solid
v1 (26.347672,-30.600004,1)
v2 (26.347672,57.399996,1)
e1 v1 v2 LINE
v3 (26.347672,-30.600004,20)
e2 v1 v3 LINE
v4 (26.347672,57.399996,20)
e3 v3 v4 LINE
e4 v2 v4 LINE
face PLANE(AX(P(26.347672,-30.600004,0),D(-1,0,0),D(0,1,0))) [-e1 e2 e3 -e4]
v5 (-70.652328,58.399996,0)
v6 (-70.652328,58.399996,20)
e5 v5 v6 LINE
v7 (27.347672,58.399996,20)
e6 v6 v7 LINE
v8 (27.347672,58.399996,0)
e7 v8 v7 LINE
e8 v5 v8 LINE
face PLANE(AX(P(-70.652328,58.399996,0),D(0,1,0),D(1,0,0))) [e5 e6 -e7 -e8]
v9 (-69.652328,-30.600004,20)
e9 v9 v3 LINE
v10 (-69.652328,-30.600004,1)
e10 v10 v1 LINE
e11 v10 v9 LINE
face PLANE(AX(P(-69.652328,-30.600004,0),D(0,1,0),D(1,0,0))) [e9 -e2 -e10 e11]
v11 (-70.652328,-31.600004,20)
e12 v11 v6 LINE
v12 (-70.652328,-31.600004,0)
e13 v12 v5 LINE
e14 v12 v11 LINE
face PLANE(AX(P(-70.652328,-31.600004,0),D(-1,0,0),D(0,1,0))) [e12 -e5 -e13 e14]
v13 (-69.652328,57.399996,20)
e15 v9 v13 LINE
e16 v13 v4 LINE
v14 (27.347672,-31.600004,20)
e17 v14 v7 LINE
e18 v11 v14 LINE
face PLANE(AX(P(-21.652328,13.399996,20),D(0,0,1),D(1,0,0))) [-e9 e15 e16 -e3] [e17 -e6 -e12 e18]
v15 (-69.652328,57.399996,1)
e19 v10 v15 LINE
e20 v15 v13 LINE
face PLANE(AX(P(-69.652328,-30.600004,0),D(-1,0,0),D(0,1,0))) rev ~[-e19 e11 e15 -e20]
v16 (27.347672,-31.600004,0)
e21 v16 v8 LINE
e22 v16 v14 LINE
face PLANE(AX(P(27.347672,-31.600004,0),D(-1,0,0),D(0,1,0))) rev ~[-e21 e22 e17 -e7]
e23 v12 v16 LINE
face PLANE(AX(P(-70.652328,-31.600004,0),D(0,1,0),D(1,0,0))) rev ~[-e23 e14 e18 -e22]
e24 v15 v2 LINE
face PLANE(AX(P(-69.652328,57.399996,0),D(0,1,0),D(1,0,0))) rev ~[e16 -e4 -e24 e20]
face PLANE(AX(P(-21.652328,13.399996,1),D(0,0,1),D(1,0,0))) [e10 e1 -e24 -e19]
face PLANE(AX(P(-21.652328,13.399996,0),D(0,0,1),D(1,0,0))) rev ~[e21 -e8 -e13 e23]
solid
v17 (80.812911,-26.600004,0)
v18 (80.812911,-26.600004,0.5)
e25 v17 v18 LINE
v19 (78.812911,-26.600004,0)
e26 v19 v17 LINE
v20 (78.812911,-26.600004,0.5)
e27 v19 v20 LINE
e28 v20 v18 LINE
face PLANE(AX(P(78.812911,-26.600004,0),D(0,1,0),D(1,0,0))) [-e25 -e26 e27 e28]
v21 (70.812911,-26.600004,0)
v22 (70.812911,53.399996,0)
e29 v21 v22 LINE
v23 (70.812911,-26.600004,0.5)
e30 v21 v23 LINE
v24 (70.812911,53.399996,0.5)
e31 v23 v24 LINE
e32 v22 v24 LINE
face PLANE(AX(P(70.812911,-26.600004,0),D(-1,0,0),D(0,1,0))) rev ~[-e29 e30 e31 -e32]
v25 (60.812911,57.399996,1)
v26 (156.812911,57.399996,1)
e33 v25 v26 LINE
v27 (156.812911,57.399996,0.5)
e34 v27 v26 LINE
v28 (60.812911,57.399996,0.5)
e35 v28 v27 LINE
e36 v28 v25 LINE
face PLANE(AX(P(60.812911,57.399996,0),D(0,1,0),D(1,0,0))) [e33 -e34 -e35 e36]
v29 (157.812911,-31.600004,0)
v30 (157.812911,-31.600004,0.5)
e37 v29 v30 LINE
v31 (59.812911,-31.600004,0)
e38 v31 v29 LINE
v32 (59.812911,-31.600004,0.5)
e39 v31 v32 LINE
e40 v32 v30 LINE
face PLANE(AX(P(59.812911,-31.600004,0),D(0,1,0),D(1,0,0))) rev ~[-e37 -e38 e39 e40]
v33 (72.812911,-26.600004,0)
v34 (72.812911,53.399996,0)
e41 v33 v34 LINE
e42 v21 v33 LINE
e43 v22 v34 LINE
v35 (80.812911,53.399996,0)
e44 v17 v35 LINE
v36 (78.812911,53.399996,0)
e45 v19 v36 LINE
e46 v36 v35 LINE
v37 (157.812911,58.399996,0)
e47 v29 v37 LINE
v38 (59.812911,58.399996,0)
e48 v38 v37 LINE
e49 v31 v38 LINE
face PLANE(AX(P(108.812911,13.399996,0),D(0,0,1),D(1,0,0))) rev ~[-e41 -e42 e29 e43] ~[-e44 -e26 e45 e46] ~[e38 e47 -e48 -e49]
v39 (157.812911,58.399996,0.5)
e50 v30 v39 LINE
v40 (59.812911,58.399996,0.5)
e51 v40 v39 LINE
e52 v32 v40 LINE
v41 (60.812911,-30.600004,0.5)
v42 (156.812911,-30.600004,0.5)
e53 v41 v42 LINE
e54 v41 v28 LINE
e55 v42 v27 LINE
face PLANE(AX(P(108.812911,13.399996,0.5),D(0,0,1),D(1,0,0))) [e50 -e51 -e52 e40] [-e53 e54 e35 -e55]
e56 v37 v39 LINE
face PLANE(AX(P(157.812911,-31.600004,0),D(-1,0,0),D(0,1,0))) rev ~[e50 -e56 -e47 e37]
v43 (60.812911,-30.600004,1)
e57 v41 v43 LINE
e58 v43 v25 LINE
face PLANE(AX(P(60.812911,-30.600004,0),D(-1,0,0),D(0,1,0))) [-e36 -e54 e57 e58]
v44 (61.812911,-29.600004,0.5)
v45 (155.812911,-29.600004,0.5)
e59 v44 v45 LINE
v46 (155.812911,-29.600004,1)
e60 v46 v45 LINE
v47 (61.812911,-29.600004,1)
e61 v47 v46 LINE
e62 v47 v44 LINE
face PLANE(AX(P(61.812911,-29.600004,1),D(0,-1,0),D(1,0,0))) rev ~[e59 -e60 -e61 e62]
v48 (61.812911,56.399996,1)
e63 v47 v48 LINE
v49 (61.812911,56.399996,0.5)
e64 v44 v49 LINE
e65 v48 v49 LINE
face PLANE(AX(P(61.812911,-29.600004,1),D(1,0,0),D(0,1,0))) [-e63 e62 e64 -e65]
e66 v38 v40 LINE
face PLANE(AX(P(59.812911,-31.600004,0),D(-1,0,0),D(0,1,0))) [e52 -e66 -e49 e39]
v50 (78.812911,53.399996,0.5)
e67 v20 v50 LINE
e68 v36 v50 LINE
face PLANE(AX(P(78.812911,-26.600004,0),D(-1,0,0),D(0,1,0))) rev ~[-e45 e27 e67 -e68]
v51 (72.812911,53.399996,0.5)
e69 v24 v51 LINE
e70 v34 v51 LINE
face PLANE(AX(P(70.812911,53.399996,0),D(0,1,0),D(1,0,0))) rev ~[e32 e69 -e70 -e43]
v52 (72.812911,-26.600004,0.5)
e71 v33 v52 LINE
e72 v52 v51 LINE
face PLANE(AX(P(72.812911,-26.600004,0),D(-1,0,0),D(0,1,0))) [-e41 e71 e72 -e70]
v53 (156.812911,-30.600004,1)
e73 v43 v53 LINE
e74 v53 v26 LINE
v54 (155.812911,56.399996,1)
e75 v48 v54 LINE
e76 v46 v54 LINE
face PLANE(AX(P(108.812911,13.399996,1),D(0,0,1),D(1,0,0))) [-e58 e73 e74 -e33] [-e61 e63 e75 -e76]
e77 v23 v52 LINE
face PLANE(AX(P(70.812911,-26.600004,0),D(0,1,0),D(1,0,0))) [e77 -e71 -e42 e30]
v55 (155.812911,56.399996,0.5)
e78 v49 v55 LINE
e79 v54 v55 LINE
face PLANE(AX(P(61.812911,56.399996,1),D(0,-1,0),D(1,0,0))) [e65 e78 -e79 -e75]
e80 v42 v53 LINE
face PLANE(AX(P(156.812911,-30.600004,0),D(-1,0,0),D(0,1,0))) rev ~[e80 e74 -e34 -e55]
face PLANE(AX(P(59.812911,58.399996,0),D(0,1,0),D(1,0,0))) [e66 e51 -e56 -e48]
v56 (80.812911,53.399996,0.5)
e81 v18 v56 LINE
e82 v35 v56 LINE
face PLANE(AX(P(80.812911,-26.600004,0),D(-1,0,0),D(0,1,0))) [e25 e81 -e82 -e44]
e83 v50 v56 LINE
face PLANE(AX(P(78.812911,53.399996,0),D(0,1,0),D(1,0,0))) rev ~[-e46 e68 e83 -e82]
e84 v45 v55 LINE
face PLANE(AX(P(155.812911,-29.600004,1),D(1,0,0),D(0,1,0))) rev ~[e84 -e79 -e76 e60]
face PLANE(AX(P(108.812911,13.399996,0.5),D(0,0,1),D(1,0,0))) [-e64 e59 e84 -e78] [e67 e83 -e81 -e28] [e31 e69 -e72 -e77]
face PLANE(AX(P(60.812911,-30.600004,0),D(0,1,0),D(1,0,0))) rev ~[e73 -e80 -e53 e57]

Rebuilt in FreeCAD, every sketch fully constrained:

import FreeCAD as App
import Part
import Sketcher
Q = App.Units.Quantity

doc = App.newDocument("Part")
body = doc.addObject("PartDesign::Body", "Body")

sketch1 = body.newObject("Sketcher::SketchObject", "Sketch")
sketch1.AttachmentSupport = (doc.getObject("XY_Plane"), [""])
sketch1.MapMode = "FlatFace"
sketch1.addGeometry([
    Part.LineSegment(App.Vector(-71, 58, 0), App.Vector(-71, -32, 0)),
    Part.LineSegment(App.Vector(-71, -32, 0), App.Vector(27, -32, 0)),
    Part.LineSegment(App.Vector(27, -32, 0), App.Vector(27, 58, 0)),
    Part.LineSegment(App.Vector(27, 58, 0), App.Vector(-71, 58, 0)),
    Part.LineSegment(App.Vector(26, -31, 0), App.Vector(-70, -31, 0)),
    Part.LineSegment(App.Vector(-70, -31, 0), App.Vector(-70, 57, 0)),
    Part.LineSegment(App.Vector(-70, 57, 0), App.Vector(26, 57, 0)),
    Part.LineSegment(App.Vector(26, 57, 0), App.Vector(26, -31, 0)),
], False)
sketch1.addConstraint([
    Sketcher.Constraint("Coincident", 0, 2, 1, 1),
    Sketcher.Constraint("Coincident", 1, 2, 2, 1),
    Sketcher.Constraint("Coincident", 2, 2, 3, 1),
    Sketcher.Constraint("Coincident", 3, 2, 0, 1),
    Sketcher.Constraint("Coincident", 4, 2, 5, 1),
    Sketcher.Constraint("Coincident", 5, 2, 6, 1),
    Sketcher.Constraint("Coincident", 6, 2, 7, 1),
    Sketcher.Constraint("Coincident", 7, 2, 4, 1),
    Sketcher.Constraint("Vertical", 0),
    Sketcher.Constraint("Horizontal", 1),
    Sketcher.Constraint("Vertical", 2),
    Sketcher.Constraint("Horizontal", 3),
    Sketcher.Constraint("Horizontal", 4),
    Sketcher.Constraint("Vertical", 5),
    Sketcher.Constraint("Horizontal", 6),
    Sketcher.Constraint("Vertical", 7),
    Sketcher.Constraint("DistanceX", 1, 1, 1, 2, Q("98 mm")),
    Sketcher.Constraint("DistanceX", 4, 2, 4, 1, Q("96 mm")),
    Sketcher.Constraint("DistanceY", 0, 2, 0, 1, Q("90 mm")),
    Sketcher.Constraint("DistanceY", 5, 1, 5, 2, Q("88 mm")),
    Sketcher.Constraint("DistanceX", 0, 2, 4, 2, Q("1 mm")),
    Sketcher.Constraint("DistanceY", 0, 2, 4, 2, Q("1 mm")),
    Sketcher.Constraint("DistanceX", -1, 1, 1, 2, Q("27.347672 mm")),
    Sketcher.Constraint("DistanceY", 0, 2, -1, 1, Q("31.600004 mm")),
])
pad1 = body.newObject("PartDesign::Pad", "Pad")
pad1.Profile = sketch1
pad1.Length = 20

sketch2 = body.newObject("Sketcher::SketchObject", "Sketch001")
sketch2.AttachmentSupport = (doc.getObject("XY_Plane"), [""])
sketch2.MapMode = "FlatFace"
sketch2.addGeometry([
    Part.LineSegment(App.Vector(-70, 57, 0), App.Vector(-70, -31, 0)),
    Part.LineSegment(App.Vector(-70, -31, 0), App.Vector(26, -31, 0)),
    Part.LineSegment(App.Vector(26, -31, 0), App.Vector(26, 57, 0)),
    Part.LineSegment(App.Vector(26, 57, 0), App.Vector(-70, 57, 0)),
], False)
sketch2.addConstraint([
    Sketcher.Constraint("Coincident", 0, 2, 1, 1),
    Sketcher.Constraint("Coincident", 1, 2, 2, 1),
    Sketcher.Constraint("Coincident", 2, 2, 3, 1),
    Sketcher.Constraint("Coincident", 3, 2, 0, 1),
    Sketcher.Constraint("Vertical", 0),
    Sketcher.Constraint("Horizontal", 1),
    Sketcher.Constraint("Vertical", 2),
    Sketcher.Constraint("Horizontal", 3),
    Sketcher.Constraint("DistanceX", 1, 1, 1, 2, Q("96 mm")),
    Sketcher.Constraint("DistanceY", 0, 2, 0, 1, Q("88 mm")),
    Sketcher.Constraint("DistanceX", -1, 1, 1, 2, Q("26.347672 mm")),
    Sketcher.Constraint("DistanceY", 0, 2, -1, 1, Q("30.600004 mm")),
])
pad2 = body.newObject("PartDesign::Pad", "Pad001")
pad2.Profile = sketch2
pad2.Length = 1
body2 = doc.addObject("PartDesign::Body", "Body001")

sketch3 = body2.newObject("Sketcher::SketchObject", "Sketch002")
sketch3.AttachmentSupport = (doc.getObject("XY_Plane001"), [""])
sketch3.MapMode = "FlatFace"
sketch3.addGeometry([
    Part.LineSegment(App.Vector(60, 58, 0), App.Vector(60, -32, 0)),
    Part.LineSegment(App.Vector(60, -32, 0), App.Vector(158, -32, 0)),
    Part.LineSegment(App.Vector(158, -32, 0), App.Vector(158, 58, 0)),
    Part.LineSegment(App.Vector(158, 58, 0), App.Vector(60, 58, 0)),
    Part.LineSegment(App.Vector(157, -31, 0), App.Vector(61, -31, 0)),
    Part.LineSegment(App.Vector(61, -31, 0), App.Vector(61, 57, 0)),
    Part.LineSegment(App.Vector(61, 57, 0), App.Vector(157, 57, 0)),
    Part.LineSegment(App.Vector(157, 57, 0), App.Vector(157, -31, 0)),
], False)
sketch3.addConstraint([
    Sketcher.Constraint("Coincident", 0, 2, 1, 1),
    Sketcher.Constraint("Coincident", 1, 2, 2, 1),
    Sketcher.Constraint("Coincident", 2, 2, 3, 1),
    Sketcher.Constraint("Coincident", 3, 2, 0, 1),
    Sketcher.Constraint("Coincident", 4, 2, 5, 1),
    Sketcher.Constraint("Coincident", 5, 2, 6, 1),
    Sketcher.Constraint("Coincident", 6, 2, 7, 1),
    Sketcher.Constraint("Coincident", 7, 2, 4, 1),
    Sketcher.Constraint("Vertical", 0),
    Sketcher.Constraint("Horizontal", 1),
    Sketcher.Constraint("Vertical", 2),
    Sketcher.Constraint("Horizontal", 3),
    Sketcher.Constraint("Horizontal", 4),
    Sketcher.Constraint("Vertical", 5),
    Sketcher.Constraint("Horizontal", 6),
    Sketcher.Constraint("Vertical", 7),
    Sketcher.Constraint("DistanceX", 1, 1, 1, 2, Q("98 mm")),
    Sketcher.Constraint("DistanceX", 4, 2, 4, 1, Q("96 mm")),
    Sketcher.Constraint("DistanceY", 0, 2, 0, 1, Q("90 mm")),
    Sketcher.Constraint("DistanceY", 5, 1, 5, 2, Q("88 mm")),
    Sketcher.Constraint("DistanceX", 0, 2, 4, 2, Q("1 mm")),
    Sketcher.Constraint("DistanceY", 0, 2, 4, 2, Q("1 mm")),
    Sketcher.Constraint("DistanceX", -1, 1, 0, 2, Q("59.812911 mm")),
    Sketcher.Constraint("DistanceY", 0, 2, -1, 1, Q("31.600004 mm")),
])
pad3 = body2.newObject("PartDesign::Pad", "Pad002")
pad3.Profile = sketch3
pad3.Length = 0.5

sketch4 = body2.newObject("Sketcher::SketchObject", "Sketch003")
sketch4.AttachmentSupport = (doc.getObject("XY_Plane001"), [""])
sketch4.MapMode = "FlatFace"
sketch4.addGeometry([
    Part.LineSegment(App.Vector(60.8, 57.4, 0), App.Vector(60.8, -30.6, 0)),
    Part.LineSegment(App.Vector(60.8, -30.6, 0), App.Vector(156.8, -30.6, 0)),
    Part.LineSegment(App.Vector(156.8, -30.6, 0), App.Vector(156.8, 57.4, 0)),
    Part.LineSegment(App.Vector(156.8, 57.4, 0), App.Vector(60.8, 57.4, 0)),
    Part.LineSegment(App.Vector(72.8, -26.6, 0), App.Vector(70.8, -26.6, 0)),
    Part.LineSegment(App.Vector(70.8, -26.6, 0), App.Vector(70.8, 53.4, 0)),
    Part.LineSegment(App.Vector(70.8, 53.4, 0), App.Vector(72.8, 53.4, 0)),
    Part.LineSegment(App.Vector(72.8, 53.4, 0), App.Vector(72.8, -26.6, 0)),
    Part.LineSegment(App.Vector(80.8, -26.6, 0), App.Vector(78.8, -26.6, 0)),
    Part.LineSegment(App.Vector(78.8, -26.6, 0), App.Vector(78.8, 53.4, 0)),
    Part.LineSegment(App.Vector(78.8, 53.4, 0), App.Vector(80.8, 53.4, 0)),
    Part.LineSegment(App.Vector(80.8, 53.4, 0), App.Vector(80.8, -26.6, 0)),
], False)
sketch4.addConstraint([
    Sketcher.Constraint("Coincident", 0, 2, 1, 1),
    Sketcher.Constraint("Coincident", 1, 2, 2, 1),
    Sketcher.Constraint("Coincident", 2, 2, 3, 1),
    Sketcher.Constraint("Coincident", 3, 2, 0, 1),
    Sketcher.Constraint("Coincident", 4, 2, 5, 1),
    Sketcher.Constraint("Coincident", 5, 2, 6, 1),
    Sketcher.Constraint("Coincident", 6, 2, 7, 1),
    Sketcher.Constraint("Coincident", 7, 2, 4, 1),
    Sketcher.Constraint("Coincident", 8, 2, 9, 1),
    Sketcher.Constraint("Coincident", 9, 2, 10, 1),
    Sketcher.Constraint("Coincident", 10, 2, 11, 1),
    Sketcher.Constraint("Coincident", 11, 2, 8, 1),
    Sketcher.Constraint("Vertical", 0),
    Sketcher.Constraint("Horizontal", 1),
    Sketcher.Constraint("Vertical", 2),
    Sketcher.Constraint("Horizontal", 3),
    Sketcher.Constraint("Horizontal", 4),
    Sketcher.Constraint("Vertical", 5),
    Sketcher.Constraint("Horizontal", 6),
    Sketcher.Constraint("Vertical", 7),
    Sketcher.Constraint("Horizontal", 8),
    Sketcher.Constraint("Vertical", 9),
    Sketcher.Constraint("Horizontal", 10),
    Sketcher.Constraint("Vertical", 11),
    Sketcher.Constraint("Horizontal", 7, 2, 8, 2),
    Sketcher.Constraint("Horizontal", 6, 2, 9, 2),
    Sketcher.Constraint("Equal", 6, 8),
    Sketcher.Constraint("DistanceX", 1, 1, 1, 2, Q("96 mm")),
    Sketcher.Constraint("DistanceX", 4, 2, 4, 1, Q("2 mm")),
    Sketcher.Constraint("DistanceY", 0, 2, 0, 1, Q("88 mm")),
    Sketcher.Constraint("DistanceY", 5, 1, 5, 2, Q("80 mm")),
    Sketcher.Constraint("DistanceX", 0, 2, 4, 2, Q("10 mm")),
    Sketcher.Constraint("DistanceY", 0, 2, 4, 2, Q("4 mm")),
    Sketcher.Constraint("DistanceX", 7, 2, 8, 2, Q("6 mm")),
    Sketcher.Constraint("DistanceX", -1, 1, 0, 2, Q("60.812911 mm")),
    Sketcher.Constraint("DistanceY", 0, 2, -1, 1, Q("30.600004 mm")),
])
pad4 = body2.newObject("PartDesign::Pad", "Pad003")
pad4.Profile = sketch4
pad4.Length = 1

sketch5 = body2.newObject("Sketcher::SketchObject", "Sketch004")
sketch5.AttachmentSupport = (doc.getObject("XY_Plane001"), [""])
sketch5.MapMode = "FlatFace"
sketch5.AttachmentOffset = App.Placement(App.Vector(0, 0, 1), App.Rotation())
sketch5.addGeometry([
    Part.LineSegment(App.Vector(61.8, 56.4, 0), App.Vector(61.8, -29.6, 0)),
    Part.LineSegment(App.Vector(61.8, -29.6, 0), App.Vector(155.8, -29.6, 0)),
    Part.LineSegment(App.Vector(155.8, -29.6, 0), App.Vector(155.8, 56.4, 0)),
    Part.LineSegment(App.Vector(155.8, 56.4, 0), App.Vector(61.8, 56.4, 0)),
    Part.LineSegment(App.Vector(72.8, -26.6, 0), App.Vector(70.8, -26.6, 0)),
    Part.LineSegment(App.Vector(70.8, -26.6, 0), App.Vector(70.8, 53.4, 0)),
    Part.LineSegment(App.Vector(70.8, 53.4, 0), App.Vector(72.8, 53.4, 0)),
    Part.LineSegment(App.Vector(72.8, 53.4, 0), App.Vector(72.8, -26.6, 0)),
    Part.LineSegment(App.Vector(80.8, -26.6, 0), App.Vector(78.8, -26.6, 0)),
    Part.LineSegment(App.Vector(78.8, -26.6, 0), App.Vector(78.8, 53.4, 0)),
    Part.LineSegment(App.Vector(78.8, 53.4, 0), App.Vector(80.8, 53.4, 0)),
    Part.LineSegment(App.Vector(80.8, 53.4, 0), App.Vector(80.8, -26.6, 0)),
], False)
sketch5.addConstraint([
    Sketcher.Constraint("Coincident", 0, 2, 1, 1),
    Sketcher.Constraint("Coincident", 1, 2, 2, 1),
    Sketcher.Constraint("Coincident", 2, 2, 3, 1),
    Sketcher.Constraint("Coincident", 3, 2, 0, 1),
    Sketcher.Constraint("Coincident", 4, 2, 5, 1),
    Sketcher.Constraint("Coincident", 5, 2, 6, 1),
    Sketcher.Constraint("Coincident", 6, 2, 7, 1),
    Sketcher.Constraint("Coincident", 7, 2, 4, 1),
    Sketcher.Constraint("Coincident", 8, 2, 9, 1),
    Sketcher.Constraint("Coincident", 9, 2, 10, 1),
    Sketcher.Constraint("Coincident", 10, 2, 11, 1),
    Sketcher.Constraint("Coincident", 11, 2, 8, 1),
    Sketcher.Constraint("Vertical", 0),
    Sketcher.Constraint("Horizontal", 1),
    Sketcher.Constraint("Vertical", 2),
    Sketcher.Constraint("Horizontal", 3),
    Sketcher.Constraint("Horizontal", 4),
    Sketcher.Constraint("Vertical", 5),
    Sketcher.Constraint("Horizontal", 6),
    Sketcher.Constraint("Vertical", 7),
    Sketcher.Constraint("Horizontal", 8),
    Sketcher.Constraint("Vertical", 9),
    Sketcher.Constraint("Horizontal", 10),
    Sketcher.Constraint("Vertical", 11),
    Sketcher.Constraint("Horizontal", 7, 2, 8, 2),
    Sketcher.Constraint("Horizontal", 6, 2, 9, 2),
    Sketcher.Constraint("Equal", 6, 8),
    Sketcher.Constraint("DistanceX", 1, 1, 1, 2, Q("94 mm")),
    Sketcher.Constraint("DistanceX", 4, 2, 4, 1, Q("2 mm")),
    Sketcher.Constraint("DistanceY", 0, 2, 0, 1, Q("86 mm")),
    Sketcher.Constraint("DistanceY", 5, 1, 5, 2, Q("80 mm")),
    Sketcher.Constraint("DistanceX", 0, 2, 4, 2, Q("9 mm")),
    Sketcher.Constraint("DistanceY", 0, 2, 4, 2, Q("3 mm")),
    Sketcher.Constraint("DistanceX", 7, 2, 8, 2, Q("6 mm")),
    Sketcher.Constraint("DistanceX", -1, 1, 0, 2, Q("61.812911 mm")),
    Sketcher.Constraint("DistanceY", 0, 2, -1, 1, Q("29.600004 mm")),
])
pocket1 = body2.newObject("PartDesign::Pocket", "Pocket")
pocket1.Profile = sketch5
pocket1.Length = 0.5

doc.recompute()
